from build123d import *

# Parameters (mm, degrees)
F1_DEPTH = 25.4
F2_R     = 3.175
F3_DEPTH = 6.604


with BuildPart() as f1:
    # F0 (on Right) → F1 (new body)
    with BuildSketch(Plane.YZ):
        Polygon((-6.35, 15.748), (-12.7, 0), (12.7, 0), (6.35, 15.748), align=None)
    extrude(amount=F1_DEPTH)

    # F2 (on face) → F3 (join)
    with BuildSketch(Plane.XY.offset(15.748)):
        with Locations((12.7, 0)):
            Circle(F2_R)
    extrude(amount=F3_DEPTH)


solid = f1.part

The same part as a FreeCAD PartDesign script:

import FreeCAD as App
import Part
import Sketcher
from FreeCAD import Vector
Q = App.Units.Quantity

doc = App.newDocument("Part")
body = doc.addObject("PartDesign::Body", "Body")

sketch1 = body.newObject("Sketcher::SketchObject", "Sketch")
sketch1.AttachmentSupport = (doc.getObject("YZ_Plane"), [""])
sketch1.MapMode = "FlatFace"
sketch1.addGeometry([
    Part.LineSegment(Vector(-6, 16, 0), Vector(-13, 0, 0)),
    Part.LineSegment(Vector(-13, 0, 0), Vector(13, 0, 0)),
    Part.LineSegment(Vector(13, 0, 0), Vector(6, 16, 0)),
    Part.LineSegment(Vector(6, 16, 0), Vector(-6, 16, 0)),
], False)
sketch1.addConstraint([
    Sketcher.Constraint("Coincident", 0, 2, 1, 1),
    Sketcher.Constraint("Coincident", 1, 2, 2, 1),
    Sketcher.Constraint("Coincident", 2, 2, 3, 1),
    Sketcher.Constraint("Coincident", 3, 2, 0, 1),
    Sketcher.Constraint("Horizontal", 1),
    Sketcher.Constraint("Horizontal", 3),
    Sketcher.Constraint("Symmetric", 0, 2, 1, 2, -1, 1),
    Sketcher.Constraint("Equal", 0, 2),
    Sketcher.Constraint("DistanceX", 1, 1, 1, 2, Q("1 in")),
    Sketcher.Constraint("DistanceX", 3, 2, 3, 1, Q("0.5 in")),
    Sketcher.Constraint("DistanceY", -1, 1, 2, 2, Q("0.62 in")),
])
pad1 = body.newObject("PartDesign::Pad", "Pad")
pad1.Profile = sketch1
pad1.Length = Q("1 in")

sketch2 = body.newObject("Sketcher::SketchObject", "Sketch001")
sketch2.AttachmentSupport = (doc.getObject("XY_Plane"), [""])
sketch2.MapMode = "FlatFace"
sketch2.AttachmentOffset = App.Placement(Vector(0, 0, 0.62 * 25.4), App.Rotation())
sketch2.addGeometry(Part.Circle(Vector(12.7, 0, 0), Vector(0, 0, 1), 3.2), False)
sketch2.addConstraint([
    Sketcher.Constraint("PointOnObject", 0, 3, -1),
    Sketcher.Constraint("Diameter", 0, Q("0.25 in")),
    Sketcher.Constraint("DistanceX", -1, 1, 0, 3, Q("0.5 in")),
])
pad2 = body.newObject("PartDesign::Pad", "Pad001")
pad2.Profile = sketch2
pad2.Length = Q("0.26 in")

doc.recompute()
